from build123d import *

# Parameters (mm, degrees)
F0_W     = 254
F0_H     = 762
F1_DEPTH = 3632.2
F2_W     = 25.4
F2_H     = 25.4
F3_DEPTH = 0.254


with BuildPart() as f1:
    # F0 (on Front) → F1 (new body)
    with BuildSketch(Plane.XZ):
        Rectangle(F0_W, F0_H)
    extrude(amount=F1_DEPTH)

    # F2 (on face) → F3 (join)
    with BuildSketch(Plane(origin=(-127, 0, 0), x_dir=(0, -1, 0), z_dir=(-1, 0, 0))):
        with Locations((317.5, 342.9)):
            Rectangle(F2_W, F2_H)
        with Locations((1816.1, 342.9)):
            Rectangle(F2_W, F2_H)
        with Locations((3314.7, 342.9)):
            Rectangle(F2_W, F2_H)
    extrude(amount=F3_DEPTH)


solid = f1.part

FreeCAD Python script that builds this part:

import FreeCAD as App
import Part
import Sketcher

V = App.Vector
Q = App.Units.Quantity

doc = App.newDocument("Part")
body = doc.addObject("PartDesign::Body", "Body")

sketch1 = body.newObject("Sketcher::SketchObject", "Sketch")
sketch1.AttachmentSupport = (doc.getObject("XZ_Plane"), [""])
sketch1.MapMode = "FlatFace"
sketch1.addGeometry(Part.LineSegment(V(-127, 381, 0), V(-127, -381, 0)), False)
sketch1.addGeometry(Part.LineSegment(V(-127, -381, 0), V(127, -381, 0)), False)
sketch1.addGeometry(Part.LineSegment(V(127, -381, 0), V(127, 381, 0)), False)
sketch1.addGeometry(Part.LineSegment(V(127, 381, 0), V(-127, 381, 0)), False)
sketch1.addConstraint(Sketcher.Constraint("Coincident", 0, 2, 1, 1))
sketch1.addConstraint(Sketcher.Constraint("Coincident", 1, 2, 2, 1))
sketch1.addConstraint(Sketcher.Constraint("Coincident", 2, 2, 3, 1))
sketch1.addConstraint(Sketcher.Constraint("Coincident", 3, 2, 0, 1))
sketch1.addConstraint(Sketcher.Constraint("Vertical", 0))
sketch1.addConstraint(Sketcher.Constraint("Horizontal", 1))
sketch1.addConstraint(Sketcher.Constraint("Vertical", 2))
sketch1.addConstraint(Sketcher.Constraint("Horizontal", 3))
sketch1.addConstraint(Sketcher.Constraint("Symmetric", 0, 2, 2, 2, -1, 1))
sketch1.addConstraint(Sketcher.Constraint("DistanceX", 1, 1, 1, 2, Q("10 in")))
sketch1.addConstraint(Sketcher.Constraint("DistanceY", 0, 2, 0, 1, Q("30 in")))
pad1 = body.newObject("PartDesign::Pad", "Pad")
pad1.Profile = sketch1
pad1.Length = Q("143 in")

sketch2 = body.newObject("Sketcher::SketchObject", "Sketch001")
sketch2.AttachmentSupport = (doc.getObject("YZ_Plane"), [""])
sketch2.MapMode = "FlatFace"
sketch2.AttachmentOffset = App.Placement(V(0, 0, -5 * 25.4), App.Rotation())
sketch2.addGeometry(Part.LineSegment(V(-304.8, 355.6, 0), V(-304.8, 330.2, 0)), False)
sketch2.addGeometry(Part.LineSegment(V(-304.8, 330.2, 0), V(-330.2, 330.2, 0)), False)
sketch2.addGeometry(Part.LineSegment(V(-330.2, 330.2, 0), V(-330.2, 355.6, 0)), False)
sketch2.addGeometry(Part.LineSegment(V(-330.2, 355.6, 0), V(-304.8, 355.6, 0)), False)
sketch2.addGeometry(Part.LineSegment(V(-1803.4, 355.6, 0), V(-1803.4, 330.2, 0)), False)
sketch2.addGeometry(Part.LineSegment(V(-1803.4, 330.2, 0), V(-1828.8, 330.2, 0)), False)
sketch2.addGeometry(Part.LineSegment(V(-1828.8, 330.2, 0), V(-1828.8, 355.6, 0)), False)
sketch2.addGeometry(Part.LineSegment(V(-1828.8, 355.6, 0), V(-1803.4, 355.6, 0)), False)
sketch2.addGeometry(Part.LineSegment(V(-3302, 355.6, 0), V(-3302, 330.2, 0)), False)
sketch2.addGeometry(Part.LineSegment(V(-3302, 330.2, 0), V(-3327.4, 330.2, 0)), False)
sketch2.addGeometry(Part.LineSegment(V(-3327.4, 330.2, 0), V(-3327.4, 355.6, 0)), False)
sketch2.addGeometry(Part.LineSegment(V(-3327.4, 355.6, 0), V(-3302, 355.6, 0)), False)
sketch2.addConstraint(Sketcher.Constraint("Coincident", 0, 2, 1, 1))
sketch2.addConstraint(Sketcher.Constraint("Coincident", 1, 2, 2, 1))
sketch2.addConstraint(Sketcher.Constraint("Coincident", 2, 2, 3, 1))
sketch2.addConstraint(Sketcher.Constraint("Coincident", 3, 2, 0, 1))
sketch2.addConstraint(Sketcher.Constraint("Coincident", 4, 2, 5, 1))
sketch2.addConstraint(Sketcher.Constraint("Coincident", 5, 2, 6, 1))
sketch2.addConstraint(Sketcher.Constraint("Coincident", 6, 2, 7, 1))
sketch2.addConstraint(Sketcher.Constraint("Coincident", 7, 2, 4, 1))
sketch2.addConstraint(Sketcher.Constraint("Coincident", 8, 2, 9, 1))
sketch2.addConstraint(Sketcher.Constraint("Coincident", 9, 2, 10, 1))
sketch2.addConstraint(Sketcher.Constraint("Coincident", 10, 2, 11, 1))
sketch2.addConstraint(Sketcher.Constraint("Coincident", 11, 2, 8, 1))
sketch2.addConstraint(Sketcher.Constraint("Vertical", 0))
sketch2.addConstraint(Sketcher.Constraint("Horizontal", 1))
sketch2.addConstraint(Sketcher.Constraint("Vertical", 2))
sketch2.addConstraint(Sketcher.Constraint("Horizontal", 3))
sketch2.addConstraint(Sketcher.Constraint("Vertical", 4))
sketch2.addConstraint(Sketcher.Constraint("Horizontal", 5))
sketch2.addConstraint(Sketcher.Constraint("Vertical", 6))
sketch2.addConstraint(Sketcher.Constraint("Horizontal", 7))
sketch2.addConstraint(Sketcher.Constraint("Vertical", 8))
sketch2.addConstraint(Sketcher.Constraint("Horizontal", 9))
sketch2.addConstraint(Sketcher.Constraint("Vertical", 10))
sketch2.addConstraint(Sketcher.Constraint("Horizontal", 11))
sketch2.addConstraint(Sketcher.Constraint("Horizontal", 1, 2, 4, 2))
sketch2.addConstraint(Sketcher.Constraint("Horizontal", 3, 2, 6, 2))
sketch2.addConstraint(Sketcher.Constraint("Horizontal", 5, 2, 8, 2))
sketch2.addConstraint(Sketcher.Constraint("Horizontal", 7, 2, 10, 2))
sketch2.addConstraint(Sketcher.Constraint("Equal", 3, 5))
sketch2.addConstraint(Sketcher.Constraint("Equal", 7, 9))
sketch2.addConstraint(Sketcher.Constraint("Equal", 11, 0))
sketch2.addConstraint(Sketcher.Constraint("DistanceX", 1, 2, 1, 1, Q("1 in")))
sketch2.addConstraint(Sketcher.Constraint("DistanceX", 0, 2, -1, 1, Q("12 in")))
sketch2.addConstraint(Sketcher.Constraint("DistanceY", -1, 1, 0, 2, Q("13 in")))
sketch2.addConstraint(Sketcher.Constraint("DistanceX", 4, 2, -1, 1, Q("71 in")))
sketch2.addConstraint(Sketcher.Constraint("DistanceX", 8, 2, -1, 1, Q("130 in")))
pad2 = body.newObject("PartDesign::Pad", "Pad001")
pad2.Profile = sketch2
pad2.Length = Q("0.01 in")
pad2.Reversed = True

doc.recompute()
